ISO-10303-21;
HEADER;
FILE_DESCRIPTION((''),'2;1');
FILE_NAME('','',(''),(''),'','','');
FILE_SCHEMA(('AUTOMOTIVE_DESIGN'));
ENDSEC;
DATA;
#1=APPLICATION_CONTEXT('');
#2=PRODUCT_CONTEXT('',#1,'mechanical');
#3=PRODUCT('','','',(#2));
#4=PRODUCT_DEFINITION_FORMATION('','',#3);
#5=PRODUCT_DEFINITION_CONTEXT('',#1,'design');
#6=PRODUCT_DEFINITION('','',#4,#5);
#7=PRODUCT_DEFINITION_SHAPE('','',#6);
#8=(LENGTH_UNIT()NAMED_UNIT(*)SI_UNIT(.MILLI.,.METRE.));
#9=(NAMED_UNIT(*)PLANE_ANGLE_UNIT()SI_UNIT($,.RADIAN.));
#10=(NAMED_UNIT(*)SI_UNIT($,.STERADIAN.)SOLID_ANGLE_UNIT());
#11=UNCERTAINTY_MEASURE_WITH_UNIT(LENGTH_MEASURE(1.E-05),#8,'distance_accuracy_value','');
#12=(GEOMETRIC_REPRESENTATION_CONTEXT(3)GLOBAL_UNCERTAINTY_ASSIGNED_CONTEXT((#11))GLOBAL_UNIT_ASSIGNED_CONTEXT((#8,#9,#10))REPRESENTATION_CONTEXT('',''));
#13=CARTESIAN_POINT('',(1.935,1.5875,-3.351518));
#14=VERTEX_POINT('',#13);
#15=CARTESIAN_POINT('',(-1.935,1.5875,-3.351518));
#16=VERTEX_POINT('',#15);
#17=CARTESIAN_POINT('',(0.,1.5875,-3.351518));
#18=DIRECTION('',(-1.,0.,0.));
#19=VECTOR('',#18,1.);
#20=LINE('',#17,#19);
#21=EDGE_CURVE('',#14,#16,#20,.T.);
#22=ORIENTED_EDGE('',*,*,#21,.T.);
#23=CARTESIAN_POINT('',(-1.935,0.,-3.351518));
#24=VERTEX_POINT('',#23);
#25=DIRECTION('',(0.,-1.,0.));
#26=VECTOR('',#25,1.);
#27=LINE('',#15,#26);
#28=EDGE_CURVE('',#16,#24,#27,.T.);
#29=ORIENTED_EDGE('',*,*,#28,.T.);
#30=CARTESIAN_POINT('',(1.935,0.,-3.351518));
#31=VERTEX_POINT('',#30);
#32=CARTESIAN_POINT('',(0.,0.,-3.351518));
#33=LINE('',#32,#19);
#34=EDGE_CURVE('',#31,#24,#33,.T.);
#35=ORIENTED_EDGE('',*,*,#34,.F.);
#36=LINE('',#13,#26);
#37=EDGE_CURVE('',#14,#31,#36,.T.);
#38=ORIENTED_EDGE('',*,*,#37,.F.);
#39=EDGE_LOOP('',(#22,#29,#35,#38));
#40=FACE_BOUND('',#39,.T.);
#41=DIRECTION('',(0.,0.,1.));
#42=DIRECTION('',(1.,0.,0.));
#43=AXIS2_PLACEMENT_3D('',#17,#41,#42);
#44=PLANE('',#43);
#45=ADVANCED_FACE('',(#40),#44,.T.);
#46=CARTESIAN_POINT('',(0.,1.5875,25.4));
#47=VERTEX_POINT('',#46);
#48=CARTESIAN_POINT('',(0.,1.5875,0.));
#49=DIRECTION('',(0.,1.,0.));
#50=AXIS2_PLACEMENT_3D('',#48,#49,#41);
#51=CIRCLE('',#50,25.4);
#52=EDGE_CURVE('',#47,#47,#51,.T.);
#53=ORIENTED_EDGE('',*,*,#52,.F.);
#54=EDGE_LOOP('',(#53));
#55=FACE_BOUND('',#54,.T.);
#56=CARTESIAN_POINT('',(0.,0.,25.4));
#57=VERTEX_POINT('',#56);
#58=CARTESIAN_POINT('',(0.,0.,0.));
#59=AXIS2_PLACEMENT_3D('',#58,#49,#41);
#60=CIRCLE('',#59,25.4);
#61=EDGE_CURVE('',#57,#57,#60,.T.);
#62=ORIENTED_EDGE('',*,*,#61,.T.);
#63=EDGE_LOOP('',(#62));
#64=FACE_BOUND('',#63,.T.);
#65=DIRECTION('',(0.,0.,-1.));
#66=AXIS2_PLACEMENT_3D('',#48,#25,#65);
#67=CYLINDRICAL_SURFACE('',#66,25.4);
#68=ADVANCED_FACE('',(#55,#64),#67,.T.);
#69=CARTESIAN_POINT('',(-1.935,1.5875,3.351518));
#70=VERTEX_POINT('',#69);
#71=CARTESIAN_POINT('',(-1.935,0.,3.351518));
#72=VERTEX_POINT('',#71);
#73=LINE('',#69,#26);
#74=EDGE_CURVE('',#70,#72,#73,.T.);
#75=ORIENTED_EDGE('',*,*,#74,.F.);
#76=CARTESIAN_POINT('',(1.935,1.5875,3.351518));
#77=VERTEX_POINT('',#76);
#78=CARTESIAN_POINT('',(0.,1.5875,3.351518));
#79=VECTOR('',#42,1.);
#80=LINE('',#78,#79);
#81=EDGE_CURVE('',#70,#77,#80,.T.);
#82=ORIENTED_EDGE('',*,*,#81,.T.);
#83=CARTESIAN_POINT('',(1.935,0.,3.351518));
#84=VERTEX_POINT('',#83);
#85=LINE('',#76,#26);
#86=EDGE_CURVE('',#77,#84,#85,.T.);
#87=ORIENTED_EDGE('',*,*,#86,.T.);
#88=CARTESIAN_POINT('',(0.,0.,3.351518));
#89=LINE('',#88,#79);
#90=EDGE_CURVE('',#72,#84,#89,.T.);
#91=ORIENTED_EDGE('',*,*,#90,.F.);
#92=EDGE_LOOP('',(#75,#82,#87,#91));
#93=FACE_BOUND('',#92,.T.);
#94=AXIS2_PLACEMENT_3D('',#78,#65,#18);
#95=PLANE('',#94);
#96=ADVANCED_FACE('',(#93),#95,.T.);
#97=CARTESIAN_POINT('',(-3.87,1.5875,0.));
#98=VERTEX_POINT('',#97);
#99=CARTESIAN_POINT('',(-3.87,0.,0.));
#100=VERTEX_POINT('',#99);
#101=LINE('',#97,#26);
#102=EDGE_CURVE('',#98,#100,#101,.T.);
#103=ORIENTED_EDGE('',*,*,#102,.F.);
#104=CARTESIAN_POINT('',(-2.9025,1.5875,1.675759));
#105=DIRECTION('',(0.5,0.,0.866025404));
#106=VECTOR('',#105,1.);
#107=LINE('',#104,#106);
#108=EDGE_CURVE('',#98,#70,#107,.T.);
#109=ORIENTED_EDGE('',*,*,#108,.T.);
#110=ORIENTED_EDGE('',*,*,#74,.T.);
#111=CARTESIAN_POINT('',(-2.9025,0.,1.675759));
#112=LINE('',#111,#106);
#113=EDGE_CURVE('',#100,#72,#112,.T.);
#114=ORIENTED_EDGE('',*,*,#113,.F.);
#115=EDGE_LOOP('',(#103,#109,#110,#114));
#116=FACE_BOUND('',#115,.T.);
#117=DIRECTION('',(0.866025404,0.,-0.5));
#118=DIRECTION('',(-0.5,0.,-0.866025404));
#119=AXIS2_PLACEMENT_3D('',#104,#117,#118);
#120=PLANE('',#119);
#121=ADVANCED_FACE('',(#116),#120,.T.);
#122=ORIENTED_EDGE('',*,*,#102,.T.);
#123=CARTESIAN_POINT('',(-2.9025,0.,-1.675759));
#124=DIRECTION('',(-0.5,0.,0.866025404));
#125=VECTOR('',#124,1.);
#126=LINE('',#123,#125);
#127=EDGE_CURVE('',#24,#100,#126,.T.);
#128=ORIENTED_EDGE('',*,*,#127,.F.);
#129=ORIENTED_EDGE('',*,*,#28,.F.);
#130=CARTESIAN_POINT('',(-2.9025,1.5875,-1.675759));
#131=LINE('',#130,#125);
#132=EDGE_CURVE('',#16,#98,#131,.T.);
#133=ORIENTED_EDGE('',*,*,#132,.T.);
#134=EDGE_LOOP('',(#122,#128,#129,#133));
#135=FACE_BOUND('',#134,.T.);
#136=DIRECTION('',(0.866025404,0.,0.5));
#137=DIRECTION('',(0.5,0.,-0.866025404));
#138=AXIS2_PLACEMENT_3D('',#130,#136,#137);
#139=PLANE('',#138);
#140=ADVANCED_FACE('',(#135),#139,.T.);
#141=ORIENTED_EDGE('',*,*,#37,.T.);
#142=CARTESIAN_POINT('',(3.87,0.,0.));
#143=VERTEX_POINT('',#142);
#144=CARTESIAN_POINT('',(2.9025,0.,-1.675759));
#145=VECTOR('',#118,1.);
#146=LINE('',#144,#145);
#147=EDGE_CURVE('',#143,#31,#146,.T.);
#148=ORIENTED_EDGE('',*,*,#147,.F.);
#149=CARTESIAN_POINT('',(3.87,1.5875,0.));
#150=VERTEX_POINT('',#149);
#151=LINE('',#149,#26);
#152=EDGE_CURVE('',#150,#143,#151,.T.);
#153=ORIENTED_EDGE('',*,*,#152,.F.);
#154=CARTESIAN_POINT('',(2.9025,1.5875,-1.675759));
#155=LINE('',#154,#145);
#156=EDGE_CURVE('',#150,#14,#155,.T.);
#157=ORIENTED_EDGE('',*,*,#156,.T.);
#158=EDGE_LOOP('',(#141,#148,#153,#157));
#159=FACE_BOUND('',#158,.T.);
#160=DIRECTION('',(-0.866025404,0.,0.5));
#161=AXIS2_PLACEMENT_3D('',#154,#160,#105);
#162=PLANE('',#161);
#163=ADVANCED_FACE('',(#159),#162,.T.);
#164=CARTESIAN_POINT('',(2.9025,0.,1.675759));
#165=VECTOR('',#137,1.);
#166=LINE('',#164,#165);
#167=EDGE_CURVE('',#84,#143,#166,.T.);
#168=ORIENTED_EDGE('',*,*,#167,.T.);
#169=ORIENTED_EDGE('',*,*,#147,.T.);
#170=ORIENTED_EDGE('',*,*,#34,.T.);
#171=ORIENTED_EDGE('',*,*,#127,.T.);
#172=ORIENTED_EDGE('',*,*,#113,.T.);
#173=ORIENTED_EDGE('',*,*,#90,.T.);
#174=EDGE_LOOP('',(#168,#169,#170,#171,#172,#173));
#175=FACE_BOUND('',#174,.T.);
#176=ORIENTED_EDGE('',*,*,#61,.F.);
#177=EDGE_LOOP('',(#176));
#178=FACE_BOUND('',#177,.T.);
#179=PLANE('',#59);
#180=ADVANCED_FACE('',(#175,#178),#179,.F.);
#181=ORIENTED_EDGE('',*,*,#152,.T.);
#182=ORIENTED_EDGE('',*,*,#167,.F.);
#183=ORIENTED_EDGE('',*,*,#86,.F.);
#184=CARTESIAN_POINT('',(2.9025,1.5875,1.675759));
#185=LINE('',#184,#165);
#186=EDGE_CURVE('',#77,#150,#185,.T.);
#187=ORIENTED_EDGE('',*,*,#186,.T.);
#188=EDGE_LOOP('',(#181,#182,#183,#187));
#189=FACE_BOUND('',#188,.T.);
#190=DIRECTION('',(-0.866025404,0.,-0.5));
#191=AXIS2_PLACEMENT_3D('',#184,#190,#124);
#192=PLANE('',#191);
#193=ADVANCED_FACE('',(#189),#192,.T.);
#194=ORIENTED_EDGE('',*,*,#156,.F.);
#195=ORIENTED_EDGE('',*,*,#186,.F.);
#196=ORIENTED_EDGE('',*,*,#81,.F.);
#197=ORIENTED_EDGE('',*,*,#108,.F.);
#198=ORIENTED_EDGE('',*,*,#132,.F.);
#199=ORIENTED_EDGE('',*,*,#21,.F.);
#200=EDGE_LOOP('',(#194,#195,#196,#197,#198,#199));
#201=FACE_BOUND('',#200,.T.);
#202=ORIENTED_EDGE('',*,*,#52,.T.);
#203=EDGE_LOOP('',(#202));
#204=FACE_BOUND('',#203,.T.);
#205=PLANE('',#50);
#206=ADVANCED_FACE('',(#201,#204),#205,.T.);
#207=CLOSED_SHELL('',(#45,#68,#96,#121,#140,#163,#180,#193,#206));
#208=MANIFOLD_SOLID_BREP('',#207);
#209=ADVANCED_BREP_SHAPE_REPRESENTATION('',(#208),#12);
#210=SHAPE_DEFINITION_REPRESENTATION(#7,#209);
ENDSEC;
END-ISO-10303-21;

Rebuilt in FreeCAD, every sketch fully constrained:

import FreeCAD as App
import Part
import Sketcher
Q = App.Units.Quantity


def add_polygon(sketch, points):
    """Adds a closed chain of lines whose ends are joined by coincident constraints."""
    first, n = sketch.GeometryCount, len(points)
    for a, b in zip(points, points[1:] + points[:1]):
        sketch.addGeometry(Part.LineSegment(App.Vector(*a, 0), App.Vector(*b, 0)), False)
    for i in range(n):
        sketch.addConstraint(Sketcher.Constraint("Coincident", first + i, 2, first + (i + 1) % n, 1))

doc = App.newDocument("Part")
body = doc.addObject("PartDesign::Body", "Body")

sketch1 = doc.addObject("Sketcher::SketchObject", "Sketch")
body.addObject(sketch1)
sketch1.AttachmentSupport = (doc.XZ_Plane, [""])
sketch1.MapMode = "FlatFace"
sketch1.addGeometry(Part.Circle(App.Vector(0, 0, 0), App.Vector(0, 0, 1), 25.4), False)
add_polygon(sketch1, [(1.935, -3.351518), (3.87, 0), (1.935, 3.351518), (-1.935, 3.351518), (-3.87, 0), (-1.935, -3.351518)])
sketch1.addConstraint(Sketcher.Constraint("Horizontal", 3))
sketch1.addConstraint(Sketcher.Constraint("Horizontal", 6))
sketch1.addConstraint(Sketcher.Constraint("Coincident", 0, 3, -1, 1))
sketch1.addConstraint(Sketcher.Constraint("Symmetric", 1, 2, 4, 2, -1, 1))
sketch1.addConstraint(Sketcher.Constraint("Symmetric", 2, 2, 5, 2, -1, 1))
sketch1.addConstraint(Sketcher.Constraint("PointOnObject", 1, 2, -1))
sketch1.addConstraint(Sketcher.Constraint("Parallel", 1, 4))
sketch1.addConstraint(Sketcher.Constraint("Vertical", 3, 2, 5, 2))
sketch1.addConstraint(Sketcher.Constraint("Diameter", 0, Q("2 in")))
sketch1.addConstraint(Sketcher.Constraint("Angle", 1, Q("60 deg")))
sketch1.addConstraint(Sketcher.Constraint("DistanceX", 3, 2, 3, 1, 3.87))
sketch1.addConstraint(Sketcher.Constraint("Distance", 1, 3.87))
pad1 = doc.addObject("PartDesign::Pad", "Pad")
body.addObject(pad1)
pad1.Profile = sketch1
pad1.Length = Q("0.0625 in")
pad1.Reversed = True

doc.recompute()
